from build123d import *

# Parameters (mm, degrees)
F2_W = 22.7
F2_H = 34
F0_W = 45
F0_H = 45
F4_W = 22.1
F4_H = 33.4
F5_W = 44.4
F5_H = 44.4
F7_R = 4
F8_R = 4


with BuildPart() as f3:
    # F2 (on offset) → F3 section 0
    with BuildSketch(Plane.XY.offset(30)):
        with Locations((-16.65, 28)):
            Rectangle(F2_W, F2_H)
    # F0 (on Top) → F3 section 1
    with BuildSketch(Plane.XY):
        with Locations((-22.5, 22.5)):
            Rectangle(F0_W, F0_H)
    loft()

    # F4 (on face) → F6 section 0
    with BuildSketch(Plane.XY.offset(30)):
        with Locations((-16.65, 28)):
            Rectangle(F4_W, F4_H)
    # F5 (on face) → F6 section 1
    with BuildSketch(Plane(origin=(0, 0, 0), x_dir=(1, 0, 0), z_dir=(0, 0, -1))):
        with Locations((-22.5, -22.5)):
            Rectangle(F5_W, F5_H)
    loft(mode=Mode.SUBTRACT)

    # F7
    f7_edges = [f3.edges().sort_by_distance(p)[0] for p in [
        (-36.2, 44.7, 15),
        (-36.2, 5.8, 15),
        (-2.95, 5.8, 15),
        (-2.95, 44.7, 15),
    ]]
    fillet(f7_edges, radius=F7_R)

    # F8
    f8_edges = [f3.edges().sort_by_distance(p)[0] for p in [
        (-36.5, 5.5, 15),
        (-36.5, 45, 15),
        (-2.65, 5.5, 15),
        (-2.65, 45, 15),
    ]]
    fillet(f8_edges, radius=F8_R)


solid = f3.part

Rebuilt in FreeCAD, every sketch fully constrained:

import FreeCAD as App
import Part
import Sketcher
from FreeCAD import Vector
Q = App.Units.Quantity


def edges_at(feature, points):
    """Names of the edges that pass closest to the given points."""
    edges = feature.Shape.Edges
    near = lambda p: min(range(len(edges)), key=lambda i: edges[i].distToShape(Part.Vertex(*p))[0])
    return sorted({f"Edge{near(p) + 1}" for p in points})

doc = App.newDocument("Part")
params = doc.addObject("Spreadsheet::Sheet", "Params")
for row, (alias, value) in enumerate([
    ("sketch1_height", "34 mm"),
    ("sketch1_width", "22.7 mm"),
    ("sketch2_width", "45 mm"),
    ("sketch3_width", "22.1 mm"),
    ("sketch3_height", "33.4 mm"),
    ("sketch4_width", "44.4 mm"),
    ("fillet_radius", "4 mm"),
    ("fillet2_radius", "4 mm"),
], start=1):
    params.set(f"A{row}", alias)
    params.set(f"B{row}", "=" + value)
    params.setAlias(f"B{row}", alias)

body = doc.addObject("PartDesign::Body", "Body")

sketch1 = body.newObject("Sketcher::SketchObject", "Sketch")
sketch1.AttachmentSupport = (doc.getObject("XY_Plane"), [""])
sketch1.MapMode = "FlatFace"
sketch1.AttachmentOffset = App.Placement(Vector(0, 0, 30), App.Rotation())
sketch1.addGeometry(Part.LineSegment(Vector(-28, 45, 0), Vector(-28, 11, 0)), False)
sketch1.addGeometry(Part.LineSegment(Vector(-28, 11, 0), Vector(-5, 11, 0)), False)
sketch1.addGeometry(Part.LineSegment(Vector(-5, 11, 0), Vector(-5, 45, 0)), False)
sketch1.addGeometry(Part.LineSegment(Vector(-5, 45, 0), Vector(-28, 45, 0)), False)
sketch1.addConstraint(Sketcher.Constraint("Coincident", 0, 2, 1, 1))
sketch1.addConstraint(Sketcher.Constraint("Coincident", 1, 2, 2, 1))
sketch1.addConstraint(Sketcher.Constraint("Coincident", 2, 2, 3, 1))
sketch1.addConstraint(Sketcher.Constraint("Coincident", 3, 2, 0, 1))
sketch1.addConstraint(Sketcher.Constraint("Vertical", 0))
sketch1.addConstraint(Sketcher.Constraint("Horizontal", 1))
sketch1.addConstraint(Sketcher.Constraint("Vertical", 2))
sketch1.addConstraint(Sketcher.Constraint("Horizontal", 3))
sketch1.addConstraint(Sketcher.Constraint("DistanceY", 0, 2, 0, 1, Q("34 mm")))
sketch1.addConstraint(Sketcher.Constraint("DistanceX", 1, 1, 1, 2, Q("22.7 mm")))
sketch1.addConstraint(Sketcher.Constraint("DistanceX", 0, 2, -1, 1, Q("28 mm")))
sketch1.addConstraint(Sketcher.Constraint("DistanceY", -1, 1, 0, 2, Q("11 mm")))
sketch1.setExpression("Constraints[8]", "Params.sketch1_height")
sketch1.setExpression("Constraints[9]", "Params.sketch1_width")

sketch2 = body.newObject("Sketcher::SketchObject", "Sketch001")
sketch2.AttachmentSupport = (doc.getObject("XY_Plane"), [""])
sketch2.MapMode = "FlatFace"
sketch2.addGeometry(Part.LineSegment(Vector(-45, 45, 0), Vector(-45, 0, 0)), False)
sketch2.addGeometry(Part.LineSegment(Vector(-45, 0, 0), Vector(0, 0, 0)), False)
sketch2.addGeometry(Part.LineSegment(Vector(0, 0, 0), Vector(0, 45, 0)), False)
sketch2.addGeometry(Part.LineSegment(Vector(0, 45, 0), Vector(-45, 45, 0)), False)
sketch2.addConstraint(Sketcher.Constraint("Coincident", 0, 2, 1, 1))
sketch2.addConstraint(Sketcher.Constraint("Coincident", 1, 2, 2, 1))
sketch2.addConstraint(Sketcher.Constraint("Coincident", 2, 2, 3, 1))
sketch2.addConstraint(Sketcher.Constraint("Coincident", 3, 2, 0, 1))
sketch2.addConstraint(Sketcher.Constraint("Vertical", 0))
sketch2.addConstraint(Sketcher.Constraint("Horizontal", 1))
sketch2.addConstraint(Sketcher.Constraint("Vertical", 2))
sketch2.addConstraint(Sketcher.Constraint("Horizontal", 3))
sketch2.addConstraint(Sketcher.Constraint("Coincident", 1, 2, -1, 1))
sketch2.addConstraint(Sketcher.Constraint("Equal", 3, 0))
sketch2.addConstraint(Sketcher.Constraint("DistanceX", 1, 1, 1, 2, Q("45 mm")))
sketch2.setExpression("Constraints[10]", "Params.sketch2_width")

additiveloft = body.newObject("PartDesign::AdditiveLoft", "AdditiveLoft")
additiveloft.Profile = sketch1
additiveloft.Sections = [sketch2]

sketch3 = body.newObject("Sketcher::SketchObject", "Sketch002")
sketch3.AttachmentSupport = (doc.getObject("XY_Plane"), [""])
sketch3.MapMode = "FlatFace"
sketch3.AttachmentOffset = App.Placement(Vector(0, 0, 30), App.Rotation())
sketch3.addGeometry(Part.LineSegment(Vector(-28, 45, 0), Vector(-28, 11, 0)), False)
sketch3.addGeometry(Part.LineSegment(Vector(-28, 11, 0), Vector(-6, 11, 0)), False)
sketch3.addGeometry(Part.LineSegment(Vector(-6, 11, 0), Vector(-6, 45, 0)), False)
sketch3.addGeometry(Part.LineSegment(Vector(-6, 45, 0), Vector(-28, 45, 0)), False)
sketch3.addConstraint(Sketcher.Constraint("Coincident", 0, 2, 1, 1))
sketch3.addConstraint(Sketcher.Constraint("Coincident", 1, 2, 2, 1))
sketch3.addConstraint(Sketcher.Constraint("Coincident", 2, 2, 3, 1))
sketch3.addConstraint(Sketcher.Constraint("Coincident", 3, 2, 0, 1))
sketch3.addConstraint(Sketcher.Constraint("Vertical", 0))
sketch3.addConstraint(Sketcher.Constraint("Horizontal", 1))
sketch3.addConstraint(Sketcher.Constraint("Vertical", 2))
sketch3.addConstraint(Sketcher.Constraint("Horizontal", 3))
sketch3.addConstraint(Sketcher.Constraint("DistanceX", 1, 1, 1, 2, Q("22.1 mm")))
sketch3.addConstraint(Sketcher.Constraint("DistanceY", 0, 2, 0, 1, Q("33.4 mm")))
sketch3.addConstraint(Sketcher.Constraint("DistanceX", 0, 2, -1, 1, Q("27.7 mm")))
sketch3.addConstraint(Sketcher.Constraint("DistanceY", -1, 1, 0, 2, Q("11.3 mm")))
sketch3.setExpression("Constraints[8]", "Params.sketch3_width")
sketch3.setExpression("Constraints[9]", "Params.sketch3_height")

sketch4 = body.newObject("Sketcher::SketchObject", "Sketch003")
sketch4.AttachmentSupport = (doc.getObject("XY_Plane"), [""])
sketch4.MapMode = "FlatFace"
sketch4.addGeometry(Part.LineSegment(Vector(-45, 0, 0), Vector(-45, 45, 0)), False)
sketch4.addGeometry(Part.LineSegment(Vector(-45, 45, 0), Vector(0, 45, 0)), False)
sketch4.addGeometry(Part.LineSegment(Vector(0, 45, 0), Vector(0, 0, 0)), False)
sketch4.addGeometry(Part.LineSegment(Vector(0, 0, 0), Vector(-45, 0, 0)), False)
sketch4.addConstraint(Sketcher.Constraint("Coincident", 0, 2, 1, 1))
sketch4.addConstraint(Sketcher.Constraint("Coincident", 1, 2, 2, 1))
sketch4.addConstraint(Sketcher.Constraint("Coincident", 2, 2, 3, 1))
sketch4.addConstraint(Sketcher.Constraint("Coincident", 3, 2, 0, 1))
sketch4.addConstraint(Sketcher.Constraint("Vertical", 0))
sketch4.addConstraint(Sketcher.Constraint("Horizontal", 1))
sketch4.addConstraint(Sketcher.Constraint("Vertical", 2))
sketch4.addConstraint(Sketcher.Constraint("Horizontal", 3))
sketch4.addConstraint(Sketcher.Constraint("Equal", 3, 0))
sketch4.addConstraint(Sketcher.Constraint("DistanceX", 1, 1, 1, 2, Q("44.4 mm")))
sketch4.addConstraint(Sketcher.Constraint("DistanceX", 0, 2, -1, 1, Q("44.7 mm")))
sketch4.addConstraint(Sketcher.Constraint("DistanceY", -1, 1, 0, 2, Q("44.7 mm")))
sketch4.setExpression("Constraints[9]", "Params.sketch4_width")

subtractiveloft = body.newObject("PartDesign::SubtractiveLoft", "SubtractiveLoft")
subtractiveloft.Profile = sketch3
subtractiveloft.Sections = [sketch4]
doc.recompute()

fillet = body.newObject("PartDesign::Fillet", "Fillet")
fillet.Base = (subtractiveloft, edges_at(subtractiveloft, [
    (-36.2, 44.7, 15),
    (-36.2, 5.8, 15),
    (-2.95, 5.8, 15),
    (-2.95, 44.7, 15),
]))
fillet.setExpression("Radius", "Params.fillet_radius")
doc.recompute()

fillet2 = body.newObject("PartDesign::Fillet", "Fillet001")
fillet2.Base = (fillet, edges_at(fillet, [
    (-36.5, 5.5, 15),
    (-36.5, 45, 15),
    (-2.65, 5.5, 15),
    (-2.65, 45, 15),
]))
fillet2.setExpression("Radius", "Params.fillet2_radius")

doc.recompute()
